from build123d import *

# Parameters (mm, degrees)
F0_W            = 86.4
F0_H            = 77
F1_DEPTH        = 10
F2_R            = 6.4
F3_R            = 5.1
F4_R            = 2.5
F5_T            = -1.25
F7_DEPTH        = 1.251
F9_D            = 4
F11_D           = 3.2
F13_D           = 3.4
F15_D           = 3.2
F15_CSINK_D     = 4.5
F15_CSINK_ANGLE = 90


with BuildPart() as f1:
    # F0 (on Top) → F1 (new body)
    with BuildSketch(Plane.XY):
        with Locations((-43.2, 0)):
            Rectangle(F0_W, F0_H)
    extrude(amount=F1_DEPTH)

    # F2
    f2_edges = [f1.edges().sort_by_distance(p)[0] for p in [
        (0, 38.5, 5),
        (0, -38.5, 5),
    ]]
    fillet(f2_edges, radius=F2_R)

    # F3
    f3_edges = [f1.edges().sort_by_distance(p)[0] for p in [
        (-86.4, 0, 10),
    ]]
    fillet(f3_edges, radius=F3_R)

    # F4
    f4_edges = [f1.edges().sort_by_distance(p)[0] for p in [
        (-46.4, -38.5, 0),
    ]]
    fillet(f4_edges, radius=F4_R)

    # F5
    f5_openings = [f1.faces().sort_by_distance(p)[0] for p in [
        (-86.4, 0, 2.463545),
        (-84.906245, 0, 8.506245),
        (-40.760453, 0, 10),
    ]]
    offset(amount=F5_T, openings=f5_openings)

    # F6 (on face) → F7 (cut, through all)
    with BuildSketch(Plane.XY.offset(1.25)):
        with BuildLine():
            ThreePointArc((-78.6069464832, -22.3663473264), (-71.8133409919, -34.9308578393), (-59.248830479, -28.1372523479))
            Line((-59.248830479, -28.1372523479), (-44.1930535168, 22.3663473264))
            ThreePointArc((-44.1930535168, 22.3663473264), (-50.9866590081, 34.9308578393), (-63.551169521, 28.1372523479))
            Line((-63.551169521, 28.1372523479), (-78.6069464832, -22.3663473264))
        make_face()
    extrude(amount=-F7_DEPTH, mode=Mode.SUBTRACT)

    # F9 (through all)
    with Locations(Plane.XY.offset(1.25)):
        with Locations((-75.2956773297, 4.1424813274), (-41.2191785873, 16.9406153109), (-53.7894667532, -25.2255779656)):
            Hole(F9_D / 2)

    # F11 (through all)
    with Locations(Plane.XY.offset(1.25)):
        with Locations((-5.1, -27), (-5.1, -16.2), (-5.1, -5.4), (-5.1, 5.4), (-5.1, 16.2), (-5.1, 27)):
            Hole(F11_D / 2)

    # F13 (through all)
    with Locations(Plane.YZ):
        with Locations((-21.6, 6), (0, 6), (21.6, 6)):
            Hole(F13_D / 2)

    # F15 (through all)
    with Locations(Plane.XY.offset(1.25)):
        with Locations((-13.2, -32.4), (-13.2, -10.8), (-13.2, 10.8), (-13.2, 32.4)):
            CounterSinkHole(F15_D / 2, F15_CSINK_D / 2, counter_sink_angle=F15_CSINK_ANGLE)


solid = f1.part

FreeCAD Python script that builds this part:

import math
import FreeCAD as App
import Part
import Sketcher

V = App.Vector
Q = App.Units.Quantity


def edges_at(feature, points):
    """Names of the edges that pass closest to the given points."""
    edges = feature.Shape.Edges
    near = lambda p: min(range(len(edges)), key=lambda i: edges[i].distToShape(Part.Vertex(*p))[0])
    return sorted({f"Edge{near(p) + 1}" for p in points})


def faces_at(feature, points):
    """Names of the faces that lie closest to the given points."""
    faces = feature.Shape.Faces
    near = lambda p: min(range(len(faces)), key=lambda i: faces[i].distToShape(Part.Vertex(*p))[0])
    return sorted({f"Face{near(p) + 1}" for p in points})

doc = App.newDocument("Part")
body = doc.addObject("PartDesign::Body", "Body")

sketch1 = body.newObject("Sketcher::SketchObject", "Sketch")
sketch1.AttachmentSupport = (doc.getObject("XY_Plane"), [""])
sketch1.MapMode = "FlatFace"
sketch1.addGeometry(Part.LineSegment(V(-86, 38, 0), V(-86, -38, 0)), False)
sketch1.addGeometry(Part.LineSegment(V(-86, -38, 0), V(0, -38, 0)), False)
sketch1.addGeometry(Part.LineSegment(V(0, -38, 0), V(0, 38, 0)), False)
sketch1.addGeometry(Part.LineSegment(V(0, 38, 0), V(-86, 38, 0)), False)
sketch1.addConstraint(Sketcher.Constraint("Coincident", 0, 2, 1, 1))
sketch1.addConstraint(Sketcher.Constraint("Coincident", 1, 2, 2, 1))
sketch1.addConstraint(Sketcher.Constraint("Coincident", 2, 2, 3, 1))
sketch1.addConstraint(Sketcher.Constraint("Coincident", 3, 2, 0, 1))
sketch1.addConstraint(Sketcher.Constraint("Vertical", 0))
sketch1.addConstraint(Sketcher.Constraint("Horizontal", 1))
sketch1.addConstraint(Sketcher.Constraint("Vertical", 2))
sketch1.addConstraint(Sketcher.Constraint("Horizontal", 3))
sketch1.addConstraint(Sketcher.Constraint("Symmetric", 1, 2, 2, 2, -1, 1))
sketch1.addConstraint(Sketcher.Constraint("DistanceY", 0, 2, 0, 1, 77.0))
sketch1.addConstraint(Sketcher.Constraint("DistanceX", 1, 1, 1, 2, 86.4))
pad1 = body.newObject("PartDesign::Pad", "Pad")
pad1.Profile = sketch1
pad1.Length = 10
doc.recompute()

fillet = body.newObject("PartDesign::Fillet", "Fillet")
fillet.Base = (pad1, edges_at(pad1, [(0, 38.5, 5), (0, -38.5, 5)]))
fillet.Radius = 6.4
doc.recompute()

fillet2 = body.newObject("PartDesign::Fillet", "Fillet001")
fillet2.Base = (fillet, edges_at(fillet, [(-86.4, 0, 10)]))
fillet2.Radius = 5.1
doc.recompute()

fillet3 = body.newObject("PartDesign::Fillet", "Fillet002")
fillet3.Base = (fillet2, edges_at(fillet2, [(-46.4, -38.5, 0)]))
fillet3.Radius = 2.5
doc.recompute()

thickness = body.newObject("PartDesign::Thickness", "Thickness")
thickness.Base = (fillet3, faces_at(fillet3, [(-86.4, 0, 2.45), (-84.906, 0, 8.506), (-40.65, 0, 10)]))
thickness.Value = 1.25
thickness.Reversed = True
thickness.Join = "Arc"

sketch2 = body.newObject("Sketcher::SketchObject", "Sketch001")
sketch2.AttachmentSupport = (doc.getObject("XY_Plane"), [""])
sketch2.MapMode = "FlatFace"
sketch2.AttachmentOffset = App.Placement(V(0, 0, 1.25), App.Rotation())
sketch2.addGeometry(Part.ArcOfCircle(Part.Circle(V(-69, -25, 0), V(0, 0, 1), 10), math.radians(163), math.radians(343)), False)
sketch2.addGeometry(Part.LineSegment(V(-59, -28, 0), V(-44, 22, 0)), False)
sketch2.addGeometry(Part.ArcOfCircle(Part.Circle(V(-54, 25, 0), V(0, 0, 1), 10), math.radians(-17), math.radians(163)), False)
sketch2.addGeometry(Part.LineSegment(V(-64, 28, 0), V(-79, -22, 0)), False)
sketch2.addConstraint(Sketcher.Constraint("Tangent", 0, 2, 1, 1))
sketch2.addConstraint(Sketcher.Constraint("Tangent", 1, 2, 2, 1))
sketch2.addConstraint(Sketcher.Constraint("Tangent", 2, 2, 3, 1))
sketch2.addConstraint(Sketcher.Constraint("Tangent", 3, 2, 0, 1))
sketch2.addConstraint(Sketcher.Constraint("Equal", 0, 2))
sketch2.addConstraint(Sketcher.Constraint("Radius", 0, 10.1))
sketch2.addConstraint(Sketcher.Constraint("Angle", 1, Q("73.4 deg")))
sketch2.addConstraint(Sketcher.Constraint("Distance", 1, 52.7))
sketch2.addConstraint(Sketcher.Constraint("DistanceY", 0, 3, -1, 1, 25.2518))
sketch2.addConstraint(Sketcher.Constraint("DistanceX", 0, 3, -1, 1, 68.927888))
pocket1 = body.newObject("PartDesign::Pocket", "Pocket")
pocket1.Profile = sketch2
pocket1.Type = "ThroughAll"

sketch3 = body.newObject("Sketcher::SketchObject", "Sketch002")
sketch3.AttachmentSupport = (doc.getObject("XY_Plane"), [""])
sketch3.MapMode = "FlatFace"
sketch3.AttachmentOffset = App.Placement(V(0, 0, 1.25), App.Rotation())
sketch3.addGeometry(Part.Circle(V(-75.3, 4.1, 0), V(0, 0, 1), 2), False)
sketch3.addGeometry(Part.Circle(V(-41.2, 16.9, 0), V(0, 0, 1), 2), False)
sketch3.addGeometry(Part.Circle(V(-53.8, -25.2, 0), V(0, 0, 1), 2), False)
sketch3.addConstraint(Sketcher.Constraint("Equal", 0, 1))
sketch3.addConstraint(Sketcher.Constraint("Equal", 1, 2))
sketch3.addConstraint(Sketcher.Constraint("Diameter", 0, 4.0))
sketch3.addConstraint(Sketcher.Constraint("DistanceX", 0, 3, 1, 3, 34.076499))
sketch3.addConstraint(Sketcher.Constraint("DistanceY", -1, 1, 0, 3, 4.142481))
sketch3.addConstraint(Sketcher.Constraint("DistanceX", 1, 3, -1, 1, 41.219179))
sketch3.addConstraint(Sketcher.Constraint("DistanceX", 0, 3, 2, 3, 21.506211))
sketch3.addConstraint(Sketcher.Constraint("DistanceY", 2, 3, 0, 3, 29.368059))
sketch3.addConstraint(Sketcher.Constraint("DistanceY", -1, 1, 1, 3, 16.940615))
doc.recompute()
hole = body.newObject("PartDesign::Hole", "Hole")
hole.Profile = sketch3
hole.ThreadType = "None"
hole.Diameter = 4
hole.DepthType = "ThroughAll"

sketch4 = body.newObject("Sketcher::SketchObject", "Sketch003")
sketch4.AttachmentSupport = (doc.getObject("XY_Plane"), [""])
sketch4.MapMode = "FlatFace"
sketch4.AttachmentOffset = App.Placement(V(0, 0, 1.25), App.Rotation())
sketch4.addGeometry(Part.Circle(V(-5.1, -27, 0), V(0, 0, 1), 1.6), False)
sketch4.addGeometry(Part.Circle(V(-5.1, -16.2, 0), V(0, 0, 1), 1.6), False)
sketch4.addGeometry(Part.Circle(V(-5.1, -5.4, 0), V(0, 0, 1), 1.6), False)
sketch4.addGeometry(Part.Circle(V(-5.1, 5.4, 0), V(0, 0, 1), 1.6), False)
sketch4.addGeometry(Part.Circle(V(-5.1, 16.2, 0), V(0, 0, 1), 1.6), False)
sketch4.addGeometry(Part.Circle(V(-5.1, 27, 0), V(0, 0, 1), 1.6), False)
sketch4.addConstraint(Sketcher.Constraint("Equal", 0, 1))
sketch4.addConstraint(Sketcher.Constraint("Equal", 1, 2))
sketch4.addConstraint(Sketcher.Constraint("Equal", 2, 3))
sketch4.addConstraint(Sketcher.Constraint("Equal", 3, 4))
sketch4.addConstraint(Sketcher.Constraint("Equal", 4, 5))
sketch4.addConstraint(Sketcher.Constraint("Symmetric", 2, 3, 3, 3, -1))
sketch4.addConstraint(Sketcher.Constraint("Symmetric", 1, 3, 4, 3, -1))
sketch4.addConstraint(Sketcher.Constraint("Symmetric", 0, 3, 5, 3, -1))
sketch4.addConstraint(Sketcher.Constraint("Vertical", 0, 3, 1, 3))
sketch4.addConstraint(Sketcher.Constraint("Vertical", 1, 3, 2, 3))
sketch4.addConstraint(Sketcher.Constraint("Diameter", 0, 3.2))
sketch4.addConstraint(Sketcher.Constraint("DistanceY", 0, 3, -1, 1, 27.0))
sketch4.addConstraint(Sketcher.Constraint("DistanceX", 0, 3, -1, 1, 5.1))
sketch4.addConstraint(Sketcher.Constraint("DistanceY", 1, 3, -1, 1, 16.2))
sketch4.addConstraint(Sketcher.Constraint("DistanceY", 2, 3, -1, 1, 5.4))
doc.recompute()
hole2 = body.newObject("PartDesign::Hole", "Hole001")
hole2.Profile = sketch4
hole2.ThreadType = "None"
hole2.Diameter = 3.2
hole2.DepthType = "ThroughAll"

sketch5 = body.newObject("Sketcher::SketchObject", "Sketch004")
sketch5.AttachmentSupport = (doc.getObject("YZ_Plane"), [""])
sketch5.MapMode = "FlatFace"
sketch5.addGeometry(Part.Circle(V(-21.6, 6, 0), V(0, 0, 1), 1.7), False)
sketch5.addGeometry(Part.Circle(V(0, 6, 0), V(0, 0, 1), 1.7), False)
sketch5.addGeometry(Part.Circle(V(21.6, 6, 0), V(0, 0, 1), 1.7), False)
sketch5.addConstraint(Sketcher.Constraint("Equal", 0, 1))
sketch5.addConstraint(Sketcher.Constraint("Equal", 1, 2))
sketch5.addConstraint(Sketcher.Constraint("Symmetric", 0, 3, 2, 3, -2))
sketch5.addConstraint(Sketcher.Constraint("PointOnObject", 1, 3, -2))
sketch5.addConstraint(Sketcher.Constraint("Horizontal", 0, 3, 1, 3))
sketch5.addConstraint(Sketcher.Constraint("Diameter", 0, 3.4))
sketch5.addConstraint(Sketcher.Constraint("DistanceY", -1, 1, 0, 3, 6.0))
sketch5.addConstraint(Sketcher.Constraint("DistanceX", 0, 3, -1, 1, 21.6))
doc.recompute()
hole3 = body.newObject("PartDesign::Hole", "Hole002")
hole3.Profile = sketch5
hole3.ThreadType = "None"
hole3.Diameter = 3.4
hole3.DepthType = "ThroughAll"

sketch6 = body.newObject("Sketcher::SketchObject", "Sketch005")
sketch6.AttachmentSupport = (doc.getObject("XY_Plane"), [""])
sketch6.MapMode = "FlatFace"
sketch6.AttachmentOffset = App.Placement(V(0, 0, 1.25), App.Rotation())
sketch6.addGeometry(Part.Circle(V(-13.2, -32.4, 0), V(0, 0, 1), 1.6), False)
sketch6.addGeometry(Part.Circle(V(-13.2, -10.8, 0), V(0, 0, 1), 1.6), False)
sketch6.addGeometry(Part.Circle(V(-13.2, 10.8, 0), V(0, 0, 1), 1.6), False)
sketch6.addGeometry(Part.Circle(V(-13.2, 32.4, 0), V(0, 0, 1), 1.6), False)
sketch6.addConstraint(Sketcher.Constraint("Equal", 0, 1))
sketch6.addConstraint(Sketcher.Constraint("Equal", 1, 2))
sketch6.addConstraint(Sketcher.Constraint("Equal", 2, 3))
sketch6.addConstraint(Sketcher.Constraint("Symmetric", 1, 3, 2, 3, -1))
sketch6.addConstraint(Sketcher.Constraint("Symmetric", 0, 3, 3, 3, -1))
sketch6.addConstraint(Sketcher.Constraint("Vertical", 0, 3, 1, 3))
sketch6.addConstraint(Sketcher.Constraint("Diameter", 0, 3.2))
sketch6.addConstraint(Sketcher.Constraint("DistanceX", 0, 3, -1, 1, 13.2))
sketch6.addConstraint(Sketcher.Constraint("DistanceY", 0, 3, -1, 1, 32.4))
sketch6.addConstraint(Sketcher.Constraint("DistanceY", 1, 3, -1, 1, 10.8))
doc.recompute()
hole4 = body.newObject("PartDesign::Hole", "Hole003")
hole4.Profile = sketch6
hole4.ThreadType = "None"
hole4.Diameter = 3.2
hole4.DepthType = "ThroughAll"
hole4.HoleCutType = "Countersink"
hole4.HoleCutDiameter = 4.5
hole4.HoleCutCountersinkAngle = 90

doc.recompute()
